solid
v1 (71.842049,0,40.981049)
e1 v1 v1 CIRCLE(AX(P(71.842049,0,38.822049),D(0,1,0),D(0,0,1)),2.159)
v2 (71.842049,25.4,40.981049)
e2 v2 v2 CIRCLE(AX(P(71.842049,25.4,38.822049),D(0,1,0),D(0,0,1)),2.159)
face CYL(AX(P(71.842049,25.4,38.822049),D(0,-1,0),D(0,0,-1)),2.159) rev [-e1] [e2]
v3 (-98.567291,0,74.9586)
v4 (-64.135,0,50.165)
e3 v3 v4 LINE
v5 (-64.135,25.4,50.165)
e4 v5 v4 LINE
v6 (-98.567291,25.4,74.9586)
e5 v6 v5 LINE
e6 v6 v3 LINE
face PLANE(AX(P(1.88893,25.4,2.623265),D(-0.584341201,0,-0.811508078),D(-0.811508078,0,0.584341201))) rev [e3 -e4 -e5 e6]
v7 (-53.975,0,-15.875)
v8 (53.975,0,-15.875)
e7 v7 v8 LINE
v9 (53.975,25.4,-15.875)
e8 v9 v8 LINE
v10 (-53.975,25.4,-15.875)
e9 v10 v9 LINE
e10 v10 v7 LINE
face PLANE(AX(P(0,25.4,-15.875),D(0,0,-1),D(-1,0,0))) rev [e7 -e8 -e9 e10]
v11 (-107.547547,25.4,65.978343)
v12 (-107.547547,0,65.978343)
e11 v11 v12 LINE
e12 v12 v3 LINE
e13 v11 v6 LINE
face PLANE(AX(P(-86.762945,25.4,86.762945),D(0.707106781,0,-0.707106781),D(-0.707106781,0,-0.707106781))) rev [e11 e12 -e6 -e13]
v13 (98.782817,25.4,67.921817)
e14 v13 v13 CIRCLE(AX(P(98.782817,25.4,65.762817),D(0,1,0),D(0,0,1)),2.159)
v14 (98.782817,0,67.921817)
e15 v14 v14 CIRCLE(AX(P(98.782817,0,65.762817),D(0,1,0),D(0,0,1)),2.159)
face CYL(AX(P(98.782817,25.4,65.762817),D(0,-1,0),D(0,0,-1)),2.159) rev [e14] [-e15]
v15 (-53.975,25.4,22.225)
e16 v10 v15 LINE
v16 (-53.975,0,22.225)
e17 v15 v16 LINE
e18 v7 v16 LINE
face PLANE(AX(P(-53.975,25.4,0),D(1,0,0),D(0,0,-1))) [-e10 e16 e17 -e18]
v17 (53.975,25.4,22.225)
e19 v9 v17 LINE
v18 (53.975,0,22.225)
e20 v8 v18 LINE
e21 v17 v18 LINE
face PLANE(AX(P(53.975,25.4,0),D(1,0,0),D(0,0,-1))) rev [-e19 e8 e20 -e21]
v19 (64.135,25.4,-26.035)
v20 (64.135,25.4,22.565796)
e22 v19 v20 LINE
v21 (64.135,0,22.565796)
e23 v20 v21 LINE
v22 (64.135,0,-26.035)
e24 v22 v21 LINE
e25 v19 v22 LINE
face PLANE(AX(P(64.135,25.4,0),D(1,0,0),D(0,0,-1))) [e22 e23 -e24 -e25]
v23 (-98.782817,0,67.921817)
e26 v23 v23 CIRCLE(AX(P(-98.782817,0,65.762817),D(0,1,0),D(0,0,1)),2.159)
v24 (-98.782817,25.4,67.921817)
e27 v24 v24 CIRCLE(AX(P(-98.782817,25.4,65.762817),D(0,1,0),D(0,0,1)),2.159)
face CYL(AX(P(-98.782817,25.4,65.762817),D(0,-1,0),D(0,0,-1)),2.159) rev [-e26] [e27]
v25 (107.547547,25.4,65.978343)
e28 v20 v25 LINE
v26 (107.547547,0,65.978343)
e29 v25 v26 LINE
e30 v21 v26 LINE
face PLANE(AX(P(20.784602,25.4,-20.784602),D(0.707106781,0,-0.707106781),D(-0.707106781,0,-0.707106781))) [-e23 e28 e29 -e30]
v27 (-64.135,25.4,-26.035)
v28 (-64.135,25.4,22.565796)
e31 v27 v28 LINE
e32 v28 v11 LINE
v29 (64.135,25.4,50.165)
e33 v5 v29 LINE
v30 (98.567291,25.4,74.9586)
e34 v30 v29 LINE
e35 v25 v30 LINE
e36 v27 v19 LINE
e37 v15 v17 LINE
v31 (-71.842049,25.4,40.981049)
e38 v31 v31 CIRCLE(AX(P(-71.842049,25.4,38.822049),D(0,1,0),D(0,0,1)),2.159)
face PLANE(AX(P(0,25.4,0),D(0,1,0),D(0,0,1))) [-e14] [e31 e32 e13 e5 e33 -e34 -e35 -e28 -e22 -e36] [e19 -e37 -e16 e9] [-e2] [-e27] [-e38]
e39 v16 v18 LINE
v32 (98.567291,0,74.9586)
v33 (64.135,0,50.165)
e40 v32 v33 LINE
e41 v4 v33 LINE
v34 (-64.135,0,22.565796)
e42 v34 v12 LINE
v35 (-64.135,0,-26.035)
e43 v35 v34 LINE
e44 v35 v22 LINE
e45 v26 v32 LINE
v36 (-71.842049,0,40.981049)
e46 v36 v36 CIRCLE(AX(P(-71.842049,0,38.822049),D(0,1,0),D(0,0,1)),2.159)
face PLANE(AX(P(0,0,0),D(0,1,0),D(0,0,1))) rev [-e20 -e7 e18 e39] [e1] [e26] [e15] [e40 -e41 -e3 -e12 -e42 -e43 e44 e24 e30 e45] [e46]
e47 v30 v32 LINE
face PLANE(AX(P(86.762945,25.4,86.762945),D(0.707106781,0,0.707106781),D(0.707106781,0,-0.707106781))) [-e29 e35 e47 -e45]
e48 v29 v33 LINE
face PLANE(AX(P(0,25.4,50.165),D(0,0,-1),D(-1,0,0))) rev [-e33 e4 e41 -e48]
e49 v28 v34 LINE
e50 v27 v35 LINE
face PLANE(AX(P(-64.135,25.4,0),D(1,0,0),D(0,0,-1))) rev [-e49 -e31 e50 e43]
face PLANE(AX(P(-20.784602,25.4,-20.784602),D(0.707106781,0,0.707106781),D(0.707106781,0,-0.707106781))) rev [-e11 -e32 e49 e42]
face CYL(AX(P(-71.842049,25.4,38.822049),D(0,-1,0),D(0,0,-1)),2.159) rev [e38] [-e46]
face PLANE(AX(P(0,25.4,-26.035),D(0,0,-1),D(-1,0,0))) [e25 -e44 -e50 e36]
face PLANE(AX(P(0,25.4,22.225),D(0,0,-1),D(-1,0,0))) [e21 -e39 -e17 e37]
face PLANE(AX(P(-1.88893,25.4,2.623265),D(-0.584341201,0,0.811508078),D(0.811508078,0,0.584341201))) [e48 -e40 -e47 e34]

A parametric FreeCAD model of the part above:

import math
import FreeCAD as App
import Part
import Sketcher

V = App.Vector
Q = App.Units.Quantity

doc = App.newDocument("Part")
params = doc.addObject("Spreadsheet::Sheet", "Params")
for row, (alias, value) in enumerate([
    ("sketch1_height", "1.5 in"),
    ("sketch1_radius", "0.085 in"),
    ("sketch1_length", "0.5 in"),
    ("sketch1_width", "5.05 in"),
    ("sketch1_width2", "4.25 in"),
    ("pad1_length", "1 in"),
], start=1):
    params.set(f"A{row}", alias)
    params.set(f"B{row}", "=" + value)
    params.setAlias(f"B{row}", alias)

body = doc.addObject("PartDesign::Body", "Body")

# Sketch on XZ plane
sketch1 = body.newObject("Sketcher::SketchObject", "Sketch")
sketch1.AttachmentSupport = (doc.getObject("XZ_Plane"), [""])
sketch1.MapMode = "FlatFace"
sketch1.addGeometry([
    Part.LineSegment(V(-64.1, 50.2, 0), V(64.1, 50.2, 0)),  # 0
    Part.LineSegment(V(64.1, 50.2, 0), V(93.3, 71.2, 0)),  # 1
    Part.LineSegment(V(93.3, 71.2, 0), V(98.6, 75, 0)),  # 2
    Part.LineSegment(V(98.6, 75, 0), V(107.5, 66, 0)),  # 3
    Part.LineSegment(V(107.5, 66, 0), V(64.1, 22.6, 0)),  # 4
    Part.LineSegment(V(64.1, 22.6, 0), V(64.1, -26, 0)),  # 5
    Part.LineSegment(V(64.1, -26, 0), V(-64.1, -26, 0)),  # 6
    Part.LineSegment(V(-64.1, -26, 0), V(-64.1, 22.6, 0)),  # 7
    Part.LineSegment(V(-64.1, 22.6, 0), V(-107.5, 66, 0)),  # 8
    Part.LineSegment(V(-107.5, 66, 0), V(-98.6, 75, 0)),  # 9
    Part.LineSegment(V(-98.6, 75, 0), V(-93.3, 71.2, 0)),  # 10
    Part.LineSegment(V(-93.3, 71.2, 0), V(-64.1, 50.2, 0)),  # 11
    Part.ArcOfCircle(Part.Circle(V(-71.8, 38.8, 0), V(0, 0, 1), 2.2), math.radians(-45), math.radians(0)),  # 12
    Part.ArcOfCircle(Part.Circle(V(-71.8, 38.8, 0), V(0, 0, 1), 2.2), math.radians(0), math.radians(135)),  # 13
    Part.ArcOfCircle(Part.Circle(V(-71.8, 38.8, 0), V(0, 0, 1), 2.2), math.radians(135), math.radians(315)),  # 14
    Part.ArcOfCircle(Part.Circle(V(-98.8, 65.8, 0), V(0, 0, 1), 2.2), math.radians(-45), math.radians(0)),  # 15
    Part.ArcOfCircle(Part.Circle(V(-98.8, 65.8, 0), V(0, 0, 1), 2.2), math.radians(0), math.radians(45)),  # 16
    Part.ArcOfCircle(Part.Circle(V(-98.8, 65.8, 0), V(0, 0, 1), 2.2), math.radians(45), math.radians(315)),  # 17
    Part.ArcOfCircle(Part.Circle(V(71.8, 38.8, 0), V(0, 0, 1), 2.2), math.radians(-135), math.radians(0)),  # 18
    Part.ArcOfCircle(Part.Circle(V(71.8, 38.8, 0), V(0, 0, 1), 2.2), math.radians(0), math.radians(45)),  # 19
    Part.ArcOfCircle(Part.Circle(V(71.8, 38.8, 0), V(0, 0, 1), 2.2), math.radians(45), math.radians(225)),  # 20
    Part.ArcOfCircle(Part.Circle(V(98.8, 65.8, 0), V(0, 0, 1), 2.2), math.radians(-135), math.radians(0)),  # 21
    Part.ArcOfCircle(Part.Circle(V(98.8, 65.8, 0), V(0, 0, 1), 2.2), math.radians(0), math.radians(135)),  # 22
    Part.ArcOfCircle(Part.Circle(V(98.8, 65.8, 0), V(0, 0, 1), 2.2), math.radians(135), math.radians(225)),  # 23
    Part.LineSegment(V(54, 22.2, 0), V(-54, 22.2, 0)),  # 24
    Part.LineSegment(V(-54, 22.2, 0), V(-54, -15.9, 0)),  # 25
    Part.LineSegment(V(-54, -15.9, 0), V(54, -15.9, 0)),  # 26
    Part.LineSegment(V(54, -15.9, 0), V(54, 22.2, 0)),  # 27
], False)
sketch1.addConstraint([
    Sketcher.Constraint("Coincident", 0, 2, 1, 1),
    Sketcher.Constraint("Coincident", 1, 2, 2, 1),
    Sketcher.Constraint("Coincident", 2, 2, 3, 1),
    Sketcher.Constraint("Coincident", 3, 2, 4, 1),
    Sketcher.Constraint("Coincident", 4, 2, 5, 1),
    Sketcher.Constraint("Coincident", 5, 2, 6, 1),
    Sketcher.Constraint("Coincident", 6, 2, 7, 1),
    Sketcher.Constraint("Coincident", 7, 2, 8, 1),
    Sketcher.Constraint("Coincident", 8, 2, 9, 1),
    Sketcher.Constraint("Coincident", 9, 2, 10, 1),
    Sketcher.Constraint("Coincident", 10, 2, 11, 1),
    Sketcher.Constraint("Coincident", 11, 2, 0, 1),
    Sketcher.Constraint("Tangent", 12, 2, 13, 1),
    Sketcher.Constraint("Tangent", 13, 2, 14, 1),
    Sketcher.Constraint("Tangent", 14, 2, 12, 1),
    Sketcher.Constraint("Tangent", 15, 2, 16, 1),
    Sketcher.Constraint("Tangent", 16, 2, 17, 1),
    Sketcher.Constraint("Tangent", 17, 2, 15, 1),
    Sketcher.Constraint("Tangent", 18, 2, 19, 1),
    Sketcher.Constraint("Tangent", 19, 2, 20, 1),
    Sketcher.Constraint("Tangent", 20, 2, 18, 1),
    Sketcher.Constraint("Tangent", 21, 2, 22, 1),
    Sketcher.Constraint("Tangent", 22, 2, 23, 1),
    Sketcher.Constraint("Tangent", 23, 2, 21, 1),
    Sketcher.Constraint("Coincident", 24, 2, 25, 1),
    Sketcher.Constraint("Coincident", 25, 2, 26, 1),
    Sketcher.Constraint("Coincident", 26, 2, 27, 1),
    Sketcher.Constraint("Coincident", 27, 2, 24, 1),
    Sketcher.Constraint("Horizontal", 0),
    Sketcher.Constraint("Vertical", 5),
    Sketcher.Constraint("Horizontal", 6),
    Sketcher.Constraint("Vertical", 7),
    Sketcher.Constraint("Horizontal", 24),
    Sketcher.Constraint("Vertical", 25),
    Sketcher.Constraint("Horizontal", 26),
    Sketcher.Constraint("Vertical", 27),
    Sketcher.Constraint("Equal", 14, 15),
    Sketcher.Constraint("Equal", 17, 18),
    Sketcher.Constraint("Equal", 20, 21),
    Sketcher.Constraint("Symmetric", 12, 3, 18, 3, -2),
    Sketcher.Constraint("Symmetric", 15, 3, 21, 3, -2),
    Sketcher.Constraint("Symmetric", 4, 2, 7, 2, -2),
    Sketcher.Constraint("Symmetric", 3, 2, 8, 2, -2),
    Sketcher.Constraint("Symmetric", 2, 2, 9, 2, -2),
    Sketcher.Constraint("Symmetric", 1, 2, 10, 2, -2),
    Sketcher.Constraint("Parallel", 1, 2),
    Sketcher.Constraint("Perpendicular", 3, 4),
    Sketcher.Constraint("Perpendicular", 4, 8),
    Sketcher.Constraint("Parallel", 10, 11),
    Sketcher.Constraint("Horizontal", 20, 3, 12, 2),
    Sketcher.Constraint("Horizontal", 23, 3, 15, 2),
    Sketcher.Constraint("Horizontal", 12, 2, 18, 2),
    Sketcher.Constraint("Horizontal", 13, 2, 19, 2),
    Sketcher.Constraint("Horizontal", 14, 2, 20, 2),
    Sketcher.Constraint("Horizontal", 15, 2, 21, 2),
    Sketcher.Constraint("Horizontal", 16, 2, 22, 2),
    Sketcher.Constraint("Horizontal", 17, 2, 23, 2),
    Sketcher.Constraint("Vertical", 0, 2, 4, 2),
    Sketcher.Constraint("Vertical", 16, 2, 17, 2),
    Sketcher.Constraint("DistanceY", 25, 2, 25, 1, Q("1.5 in")),
    Sketcher.Constraint("Radius", 12, Q("0.085 in")),
    Sketcher.Constraint("DistanceY", 5, 2, 0, 2, Q("3 in")),
    Sketcher.Constraint("Distance", 3, Q("0.5 in")),
    Sketcher.Constraint("DistanceX", 0, 1, 0, 2, Q("5.05 in")),
    Sketcher.Constraint("DistanceX", 24, 2, 24, 1, Q("4.25 in")),
    Sketcher.Constraint("DistanceX", 7, 2, 24, 2, Q("0.4 in")),
    Sketcher.Constraint("DistanceY", 6, 2, 25, 2, Q("0.4 in")),
    Sketcher.Constraint("DistanceY", -1, 1, 0, 2, Q("1.975 in")),
    Sketcher.Constraint("DistanceY", -1, 1, 2, 2, 74.9586),
    Sketcher.Constraint("DistanceX", 1, 2, 21, 3, 5.436398),
    Sketcher.Constraint("DistanceY", 21, 3, 1, 2, 5.436398),
    Sketcher.Constraint("DistanceX", 8, 2, 13, 3, 35.705498),
    Sketcher.Constraint("Distance", 1, 35.996461),
    Sketcher.Constraint("DistanceY", 5, 2, 5, 1, 48.600796),
    Sketcher.Constraint("DistanceY", -1, 1, 12, 3, 38.822049),
    Sketcher.Constraint("DistanceY", -1, 1, 16, 2, 67.289461),
    Sketcher.Constraint("DistanceX", 13, 2, -1, 1, 73.368693),
    Sketcher.Constraint("DistanceX", 14, 2, -1, 1, 70.315405),
])
sketch1.setExpression("Constraints[59]", "Params.sketch1_height")
sketch1.setExpression("Constraints[60]", "Params.sketch1_radius")
sketch1.setExpression("Constraints[62]", "Params.sketch1_length")
sketch1.setExpression("Constraints[63]", "Params.sketch1_width")
sketch1.setExpression("Constraints[64]", "Params.sketch1_width2")
pad1 = body.newObject("PartDesign::Pad", "Pad")
pad1.Profile = sketch1
pad1.setExpression("Length", "Params.pad1_length")
pad1.Reversed = True

doc.recompute()
